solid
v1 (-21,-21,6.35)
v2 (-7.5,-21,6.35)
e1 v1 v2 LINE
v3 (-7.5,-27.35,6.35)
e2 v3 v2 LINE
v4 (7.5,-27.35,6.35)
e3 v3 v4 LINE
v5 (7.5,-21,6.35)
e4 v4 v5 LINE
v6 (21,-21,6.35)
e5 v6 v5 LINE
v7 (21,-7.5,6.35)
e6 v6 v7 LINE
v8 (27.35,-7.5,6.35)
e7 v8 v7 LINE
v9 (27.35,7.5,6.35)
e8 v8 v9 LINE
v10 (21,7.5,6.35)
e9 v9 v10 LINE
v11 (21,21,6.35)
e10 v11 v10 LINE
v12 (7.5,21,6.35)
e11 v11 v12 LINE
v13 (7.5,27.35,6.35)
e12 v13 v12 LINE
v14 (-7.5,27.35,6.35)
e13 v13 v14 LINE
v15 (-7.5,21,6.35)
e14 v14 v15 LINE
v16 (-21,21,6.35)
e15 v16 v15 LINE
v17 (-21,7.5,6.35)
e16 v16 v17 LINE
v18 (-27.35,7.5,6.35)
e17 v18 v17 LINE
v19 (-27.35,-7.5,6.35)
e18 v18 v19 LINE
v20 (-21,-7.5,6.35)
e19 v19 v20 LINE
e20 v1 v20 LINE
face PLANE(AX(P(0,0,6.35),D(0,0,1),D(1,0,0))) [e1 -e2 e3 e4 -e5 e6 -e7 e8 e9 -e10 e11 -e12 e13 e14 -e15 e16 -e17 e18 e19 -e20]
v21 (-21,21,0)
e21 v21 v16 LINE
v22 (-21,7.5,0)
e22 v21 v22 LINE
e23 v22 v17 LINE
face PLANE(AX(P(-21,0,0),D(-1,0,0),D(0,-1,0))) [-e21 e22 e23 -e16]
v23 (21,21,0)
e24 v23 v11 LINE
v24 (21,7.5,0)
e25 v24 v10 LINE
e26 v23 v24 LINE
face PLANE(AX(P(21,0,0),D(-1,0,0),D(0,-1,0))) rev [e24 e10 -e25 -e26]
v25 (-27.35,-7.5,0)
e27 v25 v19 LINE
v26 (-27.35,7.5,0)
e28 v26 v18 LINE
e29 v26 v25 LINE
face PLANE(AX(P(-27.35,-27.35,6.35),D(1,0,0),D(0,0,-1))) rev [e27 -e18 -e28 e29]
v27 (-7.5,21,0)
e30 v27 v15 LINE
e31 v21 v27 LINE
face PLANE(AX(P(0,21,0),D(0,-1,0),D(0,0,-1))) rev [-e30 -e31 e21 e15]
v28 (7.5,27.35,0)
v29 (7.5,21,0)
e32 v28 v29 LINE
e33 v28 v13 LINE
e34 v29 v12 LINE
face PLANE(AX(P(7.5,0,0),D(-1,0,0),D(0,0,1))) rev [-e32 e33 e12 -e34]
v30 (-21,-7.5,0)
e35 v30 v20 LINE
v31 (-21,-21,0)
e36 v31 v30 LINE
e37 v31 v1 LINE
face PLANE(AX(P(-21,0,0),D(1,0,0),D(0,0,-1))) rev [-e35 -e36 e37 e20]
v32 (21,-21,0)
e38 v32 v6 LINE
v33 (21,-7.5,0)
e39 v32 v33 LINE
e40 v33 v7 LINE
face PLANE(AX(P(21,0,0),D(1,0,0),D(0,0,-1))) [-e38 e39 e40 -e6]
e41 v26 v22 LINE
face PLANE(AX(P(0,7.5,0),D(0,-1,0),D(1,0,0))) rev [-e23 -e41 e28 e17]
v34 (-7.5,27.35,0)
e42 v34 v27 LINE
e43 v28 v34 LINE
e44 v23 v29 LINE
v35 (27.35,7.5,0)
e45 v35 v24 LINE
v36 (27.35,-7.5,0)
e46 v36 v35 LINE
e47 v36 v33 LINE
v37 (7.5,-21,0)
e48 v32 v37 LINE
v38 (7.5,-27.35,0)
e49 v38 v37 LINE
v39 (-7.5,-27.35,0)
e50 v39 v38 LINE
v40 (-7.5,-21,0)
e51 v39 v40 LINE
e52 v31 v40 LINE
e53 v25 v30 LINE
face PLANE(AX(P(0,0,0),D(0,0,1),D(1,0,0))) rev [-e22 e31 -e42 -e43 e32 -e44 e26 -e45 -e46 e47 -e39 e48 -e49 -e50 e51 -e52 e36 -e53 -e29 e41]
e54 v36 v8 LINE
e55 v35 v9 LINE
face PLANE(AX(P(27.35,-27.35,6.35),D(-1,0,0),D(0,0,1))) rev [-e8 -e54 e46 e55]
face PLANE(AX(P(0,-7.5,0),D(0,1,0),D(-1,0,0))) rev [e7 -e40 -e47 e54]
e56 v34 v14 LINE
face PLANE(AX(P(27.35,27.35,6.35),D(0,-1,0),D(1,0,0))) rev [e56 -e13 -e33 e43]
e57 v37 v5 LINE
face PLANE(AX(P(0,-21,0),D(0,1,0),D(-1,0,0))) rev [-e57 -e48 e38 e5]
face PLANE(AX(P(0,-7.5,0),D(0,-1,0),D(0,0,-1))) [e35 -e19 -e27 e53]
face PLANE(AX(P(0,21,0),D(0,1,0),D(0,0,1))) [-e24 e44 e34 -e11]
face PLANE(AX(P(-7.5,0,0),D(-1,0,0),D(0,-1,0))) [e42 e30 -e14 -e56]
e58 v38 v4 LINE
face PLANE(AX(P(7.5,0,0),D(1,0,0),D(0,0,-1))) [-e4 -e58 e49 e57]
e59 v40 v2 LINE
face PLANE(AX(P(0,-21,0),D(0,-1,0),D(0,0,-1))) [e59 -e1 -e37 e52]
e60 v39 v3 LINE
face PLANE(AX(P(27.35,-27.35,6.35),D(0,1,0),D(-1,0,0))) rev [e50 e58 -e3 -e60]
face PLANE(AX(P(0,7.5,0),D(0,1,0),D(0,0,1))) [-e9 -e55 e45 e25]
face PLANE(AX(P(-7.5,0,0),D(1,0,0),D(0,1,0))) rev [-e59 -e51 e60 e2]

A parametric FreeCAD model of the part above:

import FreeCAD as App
import Part
import Sketcher

V = App.Vector
Q = App.Units.Quantity

doc = App.newDocument("Part")
body = doc.addObject("PartDesign::Body", "Body")

# Sketch on XY plane
sketch1 = doc.addObject("Sketcher::SketchObject", "Sketch")
body.addObject(sketch1)
sketch1.AttachmentSupport = (doc.XY_Plane, [""])
sketch1.MapMode = "FlatFace"
sketch1.addGeometry([
    Part.LineSegment(V(-27, 27, 0), V(-27, -27, 0)),
    Part.LineSegment(V(-27, -27, 0), V(27, -27, 0)),
    Part.LineSegment(V(27, -27, 0), V(27, 27, 0)),
    Part.LineSegment(V(27, 27, 0), V(-27, 27, 0)),
], False)
sketch1.addConstraint([
    Sketcher.Constraint("Coincident", 0, 2, 1, 1),
    Sketcher.Constraint("Coincident", 1, 2, 2, 1),
    Sketcher.Constraint("Coincident", 2, 2, 3, 1),
    Sketcher.Constraint("Coincident", 3, 2, 0, 1),
    Sketcher.Constraint("Vertical", 0),
    Sketcher.Constraint("Horizontal", 1),
    Sketcher.Constraint("Vertical", 2),
    Sketcher.Constraint("Horizontal", 3),
    Sketcher.Constraint("Symmetric", 0, 2, 2, 2, -1, 1),
    Sketcher.Constraint("Equal", 3, 0),
    Sketcher.Constraint("DistanceX", 1, 1, 1, 2, Q("54.7 mm")),
])
pad1 = doc.addObject("PartDesign::Pad", "Pad")
body.addObject(pad1)
pad1.Profile = sketch1
pad1.Length = 6.35

# Sketch on XY plane
sketch2 = doc.addObject("Sketcher::SketchObject", "Sketch001")
body.addObject(sketch2)
sketch2.AttachmentSupport = (doc.XY_Plane, [""])
sketch2.MapMode = "FlatFace"
sketch2.AttachmentOffset = App.Placement(V(0, 0, 6.35), App.Rotation())
sketch2.addGeometry([
    Part.LineSegment(V(-27, 8, 0), V(-21, 8, 0)),  # 0
    Part.LineSegment(V(-21, 8, 0), V(-21, 21, 0)),  # 1
    Part.LineSegment(V(-21, 21, 0), V(-8, 21, 0)),  # 2
    Part.LineSegment(V(-8, 21, 0), V(-8, 27, 0)),  # 3
    Part.LineSegment(V(-8, 27, 0), V(-27, 27, 0)),  # 4
    Part.LineSegment(V(-27, 27, 0), V(-27, 8, 0)),  # 5
    Part.LineSegment(V(8, 27, 0), V(8, 21, 0)),  # 6
    Part.LineSegment(V(8, 21, 0), V(21, 21, 0)),  # 7
    Part.LineSegment(V(21, 21, 0), V(21, 8, 0)),  # 8
    Part.LineSegment(V(21, 8, 0), V(27, 8, 0)),  # 9
    Part.LineSegment(V(27, 8, 0), V(27, 27, 0)),  # 10
    Part.LineSegment(V(27, 27, 0), V(8, 27, 0)),  # 11
    Part.LineSegment(V(21, -8, 0), V(21, -21, 0)),  # 12
    Part.LineSegment(V(21, -21, 0), V(8, -21, 0)),  # 13
    Part.LineSegment(V(8, -21, 0), V(8, -27, 0)),  # 14
    Part.LineSegment(V(8, -27, 0), V(27, -27, 0)),  # 15
    Part.LineSegment(V(27, -27, 0), V(27, -8, 0)),  # 16
    Part.LineSegment(V(27, -8, 0), V(21, -8, 0)),  # 17
    Part.LineSegment(V(-8, -27, 0), V(-8, -21, 0)),  # 18
    Part.LineSegment(V(-8, -21, 0), V(-21, -21, 0)),  # 19
    Part.LineSegment(V(-21, -21, 0), V(-21, -8, 0)),  # 20
    Part.LineSegment(V(-21, -8, 0), V(-27, -8, 0)),  # 21
    Part.LineSegment(V(-27, -8, 0), V(-27, -27, 0)),  # 22
    Part.LineSegment(V(-27, -27, 0), V(-8, -27, 0)),  # 23
], False)
sketch2.addConstraint([
    Sketcher.Constraint("Coincident", 0, 2, 1, 1),
    Sketcher.Constraint("Coincident", 1, 2, 2, 1),
    Sketcher.Constraint("Coincident", 2, 2, 3, 1),
    Sketcher.Constraint("Coincident", 3, 2, 4, 1),
    Sketcher.Constraint("Coincident", 4, 2, 5, 1),
    Sketcher.Constraint("Coincident", 5, 2, 0, 1),
    Sketcher.Constraint("Coincident", 6, 2, 7, 1),
    Sketcher.Constraint("Coincident", 7, 2, 8, 1),
    Sketcher.Constraint("Coincident", 8, 2, 9, 1),
    Sketcher.Constraint("Coincident", 9, 2, 10, 1),
    Sketcher.Constraint("Coincident", 10, 2, 11, 1),
    Sketcher.Constraint("Coincident", 11, 2, 6, 1),
    Sketcher.Constraint("Coincident", 12, 2, 13, 1),
    Sketcher.Constraint("Coincident", 13, 2, 14, 1),
    Sketcher.Constraint("Coincident", 14, 2, 15, 1),
    Sketcher.Constraint("Coincident", 15, 2, 16, 1),
    Sketcher.Constraint("Coincident", 16, 2, 17, 1),
    Sketcher.Constraint("Coincident", 17, 2, 12, 1),
    Sketcher.Constraint("Coincident", 18, 2, 19, 1),
    Sketcher.Constraint("Coincident", 19, 2, 20, 1),
    Sketcher.Constraint("Coincident", 20, 2, 21, 1),
    Sketcher.Constraint("Coincident", 21, 2, 22, 1),
    Sketcher.Constraint("Coincident", 22, 2, 23, 1),
    Sketcher.Constraint("Coincident", 23, 2, 18, 1),
    Sketcher.Constraint("Horizontal", 0),
    Sketcher.Constraint("Vertical", 1),
    Sketcher.Constraint("Horizontal", 2),
    Sketcher.Constraint("Vertical", 3),
    Sketcher.Constraint("Horizontal", 4),
    Sketcher.Constraint("Vertical", 5),
    Sketcher.Constraint("Vertical", 6),
    Sketcher.Constraint("Horizontal", 7),
    Sketcher.Constraint("Vertical", 8),
    Sketcher.Constraint("Horizontal", 9),
    Sketcher.Constraint("Vertical", 10),
    Sketcher.Constraint("Horizontal", 11),
    Sketcher.Constraint("Vertical", 12),
    Sketcher.Constraint("Horizontal", 13),
    Sketcher.Constraint("Vertical", 14),
    Sketcher.Constraint("Horizontal", 15),
    Sketcher.Constraint("Vertical", 16),
    Sketcher.Constraint("Horizontal", 17),
    Sketcher.Constraint("Vertical", 18),
    Sketcher.Constraint("Horizontal", 19),
    Sketcher.Constraint("Vertical", 20),
    Sketcher.Constraint("Horizontal", 21),
    Sketcher.Constraint("Vertical", 22),
    Sketcher.Constraint("Horizontal", 23),
    Sketcher.Constraint("Symmetric", 1, 2, 12, 2, -1, 1),
    Sketcher.Constraint("Symmetric", 3, 2, 14, 2, -1, 1),
    Sketcher.Constraint("Symmetric", 5, 2, 16, 2, -1, 1),
    Sketcher.Constraint("Symmetric", 6, 2, 18, 2, -1, 1),
    Sketcher.Constraint("Symmetric", 8, 2, 20, 2, -1, 1),
    Sketcher.Constraint("Symmetric", 10, 2, 22, 2, -1, 1),
    Sketcher.Constraint("Symmetric", 2, 2, 6, 2, -2),
    Sketcher.Constraint("Symmetric", 0, 2, 8, 2, -2),
    Sketcher.Constraint("Symmetric", 4, 2, 10, 2, -2),
    Sketcher.Constraint("Equal", 19, 1),
    Sketcher.Constraint("Equal", 21, 3),
    Sketcher.Constraint("DistanceX", 2, 1, 2, 2, Q("13.5 mm")),
    Sketcher.Constraint("DistanceX", 0, 2, -1, 1, Q("21 mm")),
    Sketcher.Constraint("DistanceY", -1, 1, 1, 2, Q("21 mm")),
    Sketcher.Constraint("DistanceX", 0, 1, 0, 2, Q("6.35 mm")),
])
pocket1 = doc.addObject("PartDesign::Pocket", "Pocket")
body.addObject(pocket1)
pocket1.Profile = sketch2
pocket1.Type = "ThroughAll"

doc.recompute()
